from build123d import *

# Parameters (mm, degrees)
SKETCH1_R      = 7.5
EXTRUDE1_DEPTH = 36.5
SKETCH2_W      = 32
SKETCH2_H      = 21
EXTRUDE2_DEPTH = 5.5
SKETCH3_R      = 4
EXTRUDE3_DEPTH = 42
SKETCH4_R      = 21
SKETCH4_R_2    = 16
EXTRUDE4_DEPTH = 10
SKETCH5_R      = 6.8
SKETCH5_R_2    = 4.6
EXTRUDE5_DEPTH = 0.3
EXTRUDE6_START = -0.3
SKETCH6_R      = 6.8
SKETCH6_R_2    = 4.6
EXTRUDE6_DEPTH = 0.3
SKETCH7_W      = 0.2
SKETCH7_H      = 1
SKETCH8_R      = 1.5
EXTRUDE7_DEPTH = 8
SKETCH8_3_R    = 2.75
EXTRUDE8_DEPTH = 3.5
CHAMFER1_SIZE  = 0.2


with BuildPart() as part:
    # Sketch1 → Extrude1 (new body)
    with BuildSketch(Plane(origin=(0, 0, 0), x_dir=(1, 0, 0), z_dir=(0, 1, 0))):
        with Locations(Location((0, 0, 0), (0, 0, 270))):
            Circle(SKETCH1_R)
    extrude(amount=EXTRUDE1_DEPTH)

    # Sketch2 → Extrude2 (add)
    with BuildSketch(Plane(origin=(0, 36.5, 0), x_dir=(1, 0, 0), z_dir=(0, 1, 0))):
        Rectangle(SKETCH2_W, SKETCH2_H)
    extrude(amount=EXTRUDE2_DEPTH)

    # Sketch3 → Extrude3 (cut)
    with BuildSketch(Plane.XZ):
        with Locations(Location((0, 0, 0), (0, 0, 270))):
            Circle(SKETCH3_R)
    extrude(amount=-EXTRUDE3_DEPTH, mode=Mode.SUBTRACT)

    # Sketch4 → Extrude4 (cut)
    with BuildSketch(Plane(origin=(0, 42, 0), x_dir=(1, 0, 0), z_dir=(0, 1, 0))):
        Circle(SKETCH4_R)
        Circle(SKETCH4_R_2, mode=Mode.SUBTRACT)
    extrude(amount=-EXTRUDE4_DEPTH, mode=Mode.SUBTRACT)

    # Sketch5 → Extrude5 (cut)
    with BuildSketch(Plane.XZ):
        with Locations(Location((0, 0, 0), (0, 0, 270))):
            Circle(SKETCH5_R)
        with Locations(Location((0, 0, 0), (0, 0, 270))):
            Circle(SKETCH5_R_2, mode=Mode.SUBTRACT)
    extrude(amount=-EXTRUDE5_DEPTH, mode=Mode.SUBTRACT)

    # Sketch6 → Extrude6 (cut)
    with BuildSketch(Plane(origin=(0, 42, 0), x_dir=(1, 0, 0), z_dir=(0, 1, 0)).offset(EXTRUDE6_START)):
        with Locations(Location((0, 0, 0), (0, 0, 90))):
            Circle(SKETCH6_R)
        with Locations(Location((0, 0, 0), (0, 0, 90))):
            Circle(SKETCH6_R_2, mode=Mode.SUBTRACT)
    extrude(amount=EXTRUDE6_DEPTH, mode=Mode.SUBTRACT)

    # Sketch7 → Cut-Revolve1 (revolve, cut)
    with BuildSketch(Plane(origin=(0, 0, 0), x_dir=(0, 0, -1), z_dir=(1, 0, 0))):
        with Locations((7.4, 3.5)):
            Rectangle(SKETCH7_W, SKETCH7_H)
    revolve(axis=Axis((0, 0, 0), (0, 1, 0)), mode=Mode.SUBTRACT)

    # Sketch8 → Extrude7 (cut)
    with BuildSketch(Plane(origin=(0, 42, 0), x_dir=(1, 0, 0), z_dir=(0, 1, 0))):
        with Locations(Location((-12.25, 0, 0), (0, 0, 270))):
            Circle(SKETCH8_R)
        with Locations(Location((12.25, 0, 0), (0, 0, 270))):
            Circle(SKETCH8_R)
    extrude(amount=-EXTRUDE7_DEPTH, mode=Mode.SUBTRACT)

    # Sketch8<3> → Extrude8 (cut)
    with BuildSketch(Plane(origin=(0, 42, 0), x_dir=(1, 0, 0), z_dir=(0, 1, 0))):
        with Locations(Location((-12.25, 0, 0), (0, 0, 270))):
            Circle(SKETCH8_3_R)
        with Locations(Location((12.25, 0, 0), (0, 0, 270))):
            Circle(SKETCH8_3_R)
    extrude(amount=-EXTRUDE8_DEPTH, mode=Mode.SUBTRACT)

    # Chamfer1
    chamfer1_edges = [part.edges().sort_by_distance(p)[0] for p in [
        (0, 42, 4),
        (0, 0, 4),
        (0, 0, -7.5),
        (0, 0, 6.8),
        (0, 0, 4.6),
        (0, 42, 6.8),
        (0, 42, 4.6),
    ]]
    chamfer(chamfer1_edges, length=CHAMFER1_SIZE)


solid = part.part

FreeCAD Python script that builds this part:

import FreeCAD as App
import Part
import Sketcher

V = App.Vector


def edges_at(feature, points):
    """Names of the edges that pass closest to the given points."""
    edges = feature.Shape.Edges
    near = lambda p: min(range(len(edges)), key=lambda i: edges[i].distToShape(Part.Vertex(*p))[0])
    return sorted({f"Edge{near(p) + 1}" for p in points})

doc = App.newDocument("Part")
params = doc.addObject("Spreadsheet::Sheet", "Params")
for row, (alias, value) in enumerate([
    ("sketch1_diameter", "15 mm"),
    ("pad1_length", "36.5 mm"),
    ("sketch2_width", "32 mm"),
    ("sketch2_height", "21 mm"),
    ("pad2_length", "5.5 mm"),
    ("sketch3_diameter", "8 mm"),
    ("pocket1_length", "42 mm"),
    ("sketch4_diameter", "42 mm"),
    ("sketch4_diameter2", "32 mm"),
    ("pocket2_length", "10 mm"),
    ("sketch5_diameter", "13.6 mm"),
    ("sketch5_diameter2", "9.2 mm"),
    ("pocket3_length", "0.3 mm"),
    ("sketch6_diameter", "13.6 mm"),
    ("sketch6_diameter2", "9.2 mm"),
    ("pocket4_length", "0.3 mm"),
    ("sketch7_width", "1 mm"),
    ("sketch7_height", "0.2 mm"),
    ("groove_angle", "360 deg"),
    ("sketch8_diameter", "3 mm"),
    ("pocket5_length", "8 mm"),
    ("sketch9_diameter", "5.5 mm"),
    ("pocket6_length", "3.5 mm"),
    ("chamfer_size", "0.2 mm"),
], start=1):
    params.set(f"A{row}", alias)
    params.set(f"B{row}", "=" + value)
    params.setAlias(f"B{row}", alias)

body = doc.addObject("PartDesign::Body", "Body")

sketch1 = doc.addObject("Sketcher::SketchObject", "Sketch")
body.addObject(sketch1)
sketch1.AttachmentSupport = (doc.XZ_Plane, [""])
sketch1.MapMode = "FlatFace"
sketch1.addGeometry(Part.Circle(V(0, 0, 0), V(0, 0, 1), 8), False)
sketch1.addConstraint(Sketcher.Constraint("Coincident", 0, 3, -1, 1))
sketch1.addConstraint(Sketcher.Constraint("Diameter", 0, 15.0))
sketch1.setExpression("Constraints[1]", "Params.sketch1_diameter")
pad1 = doc.addObject("PartDesign::Pad", "Pad")
body.addObject(pad1)
pad1.Profile = sketch1
pad1.setExpression("Length", "Params.pad1_length")
pad1.Reversed = True

sketch2 = doc.addObject("Sketcher::SketchObject", "Sketch001")
body.addObject(sketch2)
sketch2.AttachmentSupport = (doc.XZ_Plane, [""])
sketch2.MapMode = "FlatFace"
sketch2.AttachmentOffset = App.Placement(V(0, 0, -36.5), App.Rotation())
sketch2.addGeometry(Part.LineSegment(V(-16, -10, 0), V(-16, 10, 0)), False)
sketch2.addGeometry(Part.LineSegment(V(-16, 10, 0), V(16, 10, 0)), False)
sketch2.addGeometry(Part.LineSegment(V(16, 10, 0), V(16, -10, 0)), False)
sketch2.addGeometry(Part.LineSegment(V(16, -10, 0), V(-16, -10, 0)), False)
sketch2.addConstraint(Sketcher.Constraint("Coincident", 0, 2, 1, 1))
sketch2.addConstraint(Sketcher.Constraint("Coincident", 1, 2, 2, 1))
sketch2.addConstraint(Sketcher.Constraint("Coincident", 2, 2, 3, 1))
sketch2.addConstraint(Sketcher.Constraint("Coincident", 3, 2, 0, 1))
sketch2.addConstraint(Sketcher.Constraint("Vertical", 0))
sketch2.addConstraint(Sketcher.Constraint("Horizontal", 1))
sketch2.addConstraint(Sketcher.Constraint("Vertical", 2))
sketch2.addConstraint(Sketcher.Constraint("Horizontal", 3))
sketch2.addConstraint(Sketcher.Constraint("Symmetric", 0, 2, 2, 2, -1, 1))
sketch2.addConstraint(Sketcher.Constraint("DistanceX", 1, 1, 1, 2, 32.0))
sketch2.addConstraint(Sketcher.Constraint("DistanceY", 0, 1, 0, 2, 21.0))
sketch2.setExpression("Constraints[9]", "Params.sketch2_width")
sketch2.setExpression("Constraints[10]", "Params.sketch2_height")
pad2 = doc.addObject("PartDesign::Pad", "Pad001")
body.addObject(pad2)
pad2.Profile = sketch2
pad2.setExpression("Length", "Params.pad2_length")
pad2.Reversed = True

sketch3 = doc.addObject("Sketcher::SketchObject", "Sketch002")
body.addObject(sketch3)
sketch3.AttachmentSupport = (doc.XZ_Plane, [""])
sketch3.MapMode = "FlatFace"
sketch3.addGeometry(Part.Circle(V(0, 0, 0), V(0, 0, 1), 4), False)
sketch3.addConstraint(Sketcher.Constraint("Coincident", 0, 3, -1, 1))
sketch3.addConstraint(Sketcher.Constraint("Diameter", 0, 8.0))
sketch3.setExpression("Constraints[1]", "Params.sketch3_diameter")
pocket1 = doc.addObject("PartDesign::Pocket", "Pocket")
body.addObject(pocket1)
pocket1.Profile = sketch3
pocket1.setExpression("Length", "Params.pocket1_length")

sketch4 = doc.addObject("Sketcher::SketchObject", "Sketch003")
body.addObject(sketch4)
sketch4.AttachmentSupport = (doc.XZ_Plane, [""])
sketch4.MapMode = "FlatFace"
sketch4.AttachmentOffset = App.Placement(V(0, 0, -42), App.Rotation())
sketch4.addGeometry(Part.Circle(V(0, 0, 0), V(0, 0, 1), 21), False)
sketch4.addGeometry(Part.Circle(V(0, 0, 0), V(0, 0, 1), 16), False)
sketch4.addConstraint(Sketcher.Constraint("Coincident", 0, 3, -1, 1))
sketch4.addConstraint(Sketcher.Constraint("Coincident", 1, 3, -1, 1))
sketch4.addConstraint(Sketcher.Constraint("Diameter", 0, 42.0))
sketch4.addConstraint(Sketcher.Constraint("Diameter", 1, 32.0))
sketch4.setExpression("Constraints[2]", "Params.sketch4_diameter")
sketch4.setExpression("Constraints[3]", "Params.sketch4_diameter2")
pocket2 = doc.addObject("PartDesign::Pocket", "Pocket001")
body.addObject(pocket2)
pocket2.Profile = sketch4
pocket2.setExpression("Length", "Params.pocket2_length")
pocket2.Reversed = True

sketch5 = doc.addObject("Sketcher::SketchObject", "Sketch004")
body.addObject(sketch5)
sketch5.AttachmentSupport = (doc.XZ_Plane, [""])
sketch5.MapMode = "FlatFace"
sketch5.addGeometry(Part.Circle(V(0, 0, 0), V(0, 0, 1), 6.8), False)
sketch5.addGeometry(Part.Circle(V(0, 0, 0), V(0, 0, 1), 4.6), False)
sketch5.addConstraint(Sketcher.Constraint("Coincident", 0, 3, -1, 1))
sketch5.addConstraint(Sketcher.Constraint("Coincident", 1, 3, -1, 1))
sketch5.addConstraint(Sketcher.Constraint("Diameter", 0, 13.6))
sketch5.addConstraint(Sketcher.Constraint("Diameter", 1, 9.2))
sketch5.setExpression("Constraints[2]", "Params.sketch5_diameter")
sketch5.setExpression("Constraints[3]", "Params.sketch5_diameter2")
pocket3 = doc.addObject("PartDesign::Pocket", "Pocket002")
body.addObject(pocket3)
pocket3.Profile = sketch5
pocket3.setExpression("Length", "Params.pocket3_length")

sketch6 = doc.addObject("Sketcher::SketchObject", "Sketch005")
body.addObject(sketch6)
sketch6.AttachmentSupport = (doc.XZ_Plane, [""])
sketch6.MapMode = "FlatFace"
sketch6.AttachmentOffset = App.Placement(V(0, 0, -41.7), App.Rotation())
sketch6.addGeometry(Part.Circle(V(0, 0, 0), V(0, 0, 1), 6.8), False)
sketch6.addGeometry(Part.Circle(V(0, 0, 0), V(0, 0, 1), 4.6), False)
sketch6.addConstraint(Sketcher.Constraint("Coincident", 0, 3, -1, 1))
sketch6.addConstraint(Sketcher.Constraint("Coincident", 1, 3, -1, 1))
sketch6.addConstraint(Sketcher.Constraint("Diameter", 0, 13.6))
sketch6.addConstraint(Sketcher.Constraint("Diameter", 1, 9.2))
sketch6.setExpression("Constraints[2]", "Params.sketch6_diameter")
sketch6.setExpression("Constraints[3]", "Params.sketch6_diameter2")
pocket4 = doc.addObject("PartDesign::Pocket", "Pocket003")
body.addObject(pocket4)
pocket4.Profile = sketch6
pocket4.setExpression("Length", "Params.pocket4_length")

sketch7 = doc.addObject("Sketcher::SketchObject", "Sketch006")
body.addObject(sketch7)
sketch7.AttachmentSupport = (doc.YZ_Plane, [""])
sketch7.MapMode = "FlatFace"
sketch7.addGeometry(Part.LineSegment(V(4, -7.3, 0), V(3, -7.3, 0)), False)
sketch7.addGeometry(Part.LineSegment(V(3, -7.3, 0), V(3, -7.5, 0)), False)
sketch7.addGeometry(Part.LineSegment(V(3, -7.5, 0), V(4, -7.5, 0)), False)
sketch7.addGeometry(Part.LineSegment(V(4, -7.5, 0), V(4, -7.3, 0)), False)
sketch7.addConstraint(Sketcher.Constraint("Coincident", 0, 2, 1, 1))
sketch7.addConstraint(Sketcher.Constraint("Coincident", 1, 2, 2, 1))
sketch7.addConstraint(Sketcher.Constraint("Coincident", 2, 2, 3, 1))
sketch7.addConstraint(Sketcher.Constraint("Coincident", 3, 2, 0, 1))
sketch7.addConstraint(Sketcher.Constraint("Horizontal", 0))
sketch7.addConstraint(Sketcher.Constraint("Vertical", 1))
sketch7.addConstraint(Sketcher.Constraint("Horizontal", 2))
sketch7.addConstraint(Sketcher.Constraint("Vertical", 3))
sketch7.addConstraint(Sketcher.Constraint("DistanceX", 0, 2, 0, 1, 1.0))
sketch7.addConstraint(Sketcher.Constraint("DistanceY", 1, 2, 1, 1, 0.2))
sketch7.addConstraint(Sketcher.Constraint("DistanceX", -1, 1, 0, 2, 3.0))
sketch7.addConstraint(Sketcher.Constraint("DistanceY", 0, 2, -1, 1, 7.3))
sketch7.setExpression("Constraints[8]", "Params.sketch7_width")
sketch7.setExpression("Constraints[9]", "Params.sketch7_height")
groove = doc.addObject("PartDesign::Groove", "Groove")
body.addObject(groove)
groove.Profile = sketch7
groove.ReferenceAxis = (sketch7, ["H_Axis"])
groove.setExpression("Angle", "Params.groove_angle")

sketch8 = doc.addObject("Sketcher::SketchObject", "Sketch007")
body.addObject(sketch8)
sketch8.AttachmentSupport = (doc.XZ_Plane, [""])
sketch8.MapMode = "FlatFace"
sketch8.AttachmentOffset = App.Placement(V(0, 0, -42), App.Rotation())
sketch8.addGeometry(Part.Circle(V(-12.2, 0, 0), V(0, 0, 1), 1.5), False)
sketch8.addGeometry(Part.Circle(V(12.2, 0, 0), V(0, 0, 1), 1.5), False)
sketch8.addConstraint(Sketcher.Constraint("Equal", 0, 1))
sketch8.addConstraint(Sketcher.Constraint("Symmetric", 0, 3, 1, 3, -1, 1))
sketch8.addConstraint(Sketcher.Constraint("PointOnObject", 0, 3, -1))
sketch8.addConstraint(Sketcher.Constraint("Diameter", 0, 3.0))
sketch8.addConstraint(Sketcher.Constraint("DistanceX", 0, 3, 1, 3, 24.5))
sketch8.setExpression("Constraints[3]", "Params.sketch8_diameter")
pocket5 = doc.addObject("PartDesign::Pocket", "Pocket004")
body.addObject(pocket5)
pocket5.Profile = sketch8
pocket5.setExpression("Length", "Params.pocket5_length")
pocket5.Reversed = True

sketch9 = doc.addObject("Sketcher::SketchObject", "Sketch008")
body.addObject(sketch9)
sketch9.AttachmentSupport = (doc.XZ_Plane, [""])
sketch9.MapMode = "FlatFace"
sketch9.AttachmentOffset = App.Placement(V(0, 0, -42), App.Rotation())
sketch9.addGeometry(Part.Circle(V(-12.2, 0, 0), V(0, 0, 1), 2.8), False)
sketch9.addGeometry(Part.Circle(V(12.2, 0, 0), V(0, 0, 1), 2.8), False)
sketch9.addConstraint(Sketcher.Constraint("Equal", 0, 1))
sketch9.addConstraint(Sketcher.Constraint("Symmetric", 0, 3, 1, 3, -1, 1))
sketch9.addConstraint(Sketcher.Constraint("PointOnObject", 0, 3, -1))
sketch9.addConstraint(Sketcher.Constraint("Diameter", 0, 5.5))
sketch9.addConstraint(Sketcher.Constraint("DistanceX", 0, 3, 1, 3, 24.5))
sketch9.setExpression("Constraints[3]", "Params.sketch9_diameter")
pocket6 = doc.addObject("PartDesign::Pocket", "Pocket005")
body.addObject(pocket6)
pocket6.Profile = sketch9
pocket6.setExpression("Length", "Params.pocket6_length")
pocket6.Reversed = True
doc.recompute()

chamfer = doc.addObject("PartDesign::Chamfer", "Chamfer")
body.addObject(chamfer)
chamfer.Base = (pocket6, edges_at(pocket6, [
    (0, 42, 4),
    (0, 0, 4),
    (0, 0, -7.5),
    (0, 0, 6.8),
    (0, 0, 4.6),
    (0, 42, 6.8),
    (0, 42, 4.6),
]))
chamfer.setExpression("Size", "Params.chamfer_size")

doc.recompute()
